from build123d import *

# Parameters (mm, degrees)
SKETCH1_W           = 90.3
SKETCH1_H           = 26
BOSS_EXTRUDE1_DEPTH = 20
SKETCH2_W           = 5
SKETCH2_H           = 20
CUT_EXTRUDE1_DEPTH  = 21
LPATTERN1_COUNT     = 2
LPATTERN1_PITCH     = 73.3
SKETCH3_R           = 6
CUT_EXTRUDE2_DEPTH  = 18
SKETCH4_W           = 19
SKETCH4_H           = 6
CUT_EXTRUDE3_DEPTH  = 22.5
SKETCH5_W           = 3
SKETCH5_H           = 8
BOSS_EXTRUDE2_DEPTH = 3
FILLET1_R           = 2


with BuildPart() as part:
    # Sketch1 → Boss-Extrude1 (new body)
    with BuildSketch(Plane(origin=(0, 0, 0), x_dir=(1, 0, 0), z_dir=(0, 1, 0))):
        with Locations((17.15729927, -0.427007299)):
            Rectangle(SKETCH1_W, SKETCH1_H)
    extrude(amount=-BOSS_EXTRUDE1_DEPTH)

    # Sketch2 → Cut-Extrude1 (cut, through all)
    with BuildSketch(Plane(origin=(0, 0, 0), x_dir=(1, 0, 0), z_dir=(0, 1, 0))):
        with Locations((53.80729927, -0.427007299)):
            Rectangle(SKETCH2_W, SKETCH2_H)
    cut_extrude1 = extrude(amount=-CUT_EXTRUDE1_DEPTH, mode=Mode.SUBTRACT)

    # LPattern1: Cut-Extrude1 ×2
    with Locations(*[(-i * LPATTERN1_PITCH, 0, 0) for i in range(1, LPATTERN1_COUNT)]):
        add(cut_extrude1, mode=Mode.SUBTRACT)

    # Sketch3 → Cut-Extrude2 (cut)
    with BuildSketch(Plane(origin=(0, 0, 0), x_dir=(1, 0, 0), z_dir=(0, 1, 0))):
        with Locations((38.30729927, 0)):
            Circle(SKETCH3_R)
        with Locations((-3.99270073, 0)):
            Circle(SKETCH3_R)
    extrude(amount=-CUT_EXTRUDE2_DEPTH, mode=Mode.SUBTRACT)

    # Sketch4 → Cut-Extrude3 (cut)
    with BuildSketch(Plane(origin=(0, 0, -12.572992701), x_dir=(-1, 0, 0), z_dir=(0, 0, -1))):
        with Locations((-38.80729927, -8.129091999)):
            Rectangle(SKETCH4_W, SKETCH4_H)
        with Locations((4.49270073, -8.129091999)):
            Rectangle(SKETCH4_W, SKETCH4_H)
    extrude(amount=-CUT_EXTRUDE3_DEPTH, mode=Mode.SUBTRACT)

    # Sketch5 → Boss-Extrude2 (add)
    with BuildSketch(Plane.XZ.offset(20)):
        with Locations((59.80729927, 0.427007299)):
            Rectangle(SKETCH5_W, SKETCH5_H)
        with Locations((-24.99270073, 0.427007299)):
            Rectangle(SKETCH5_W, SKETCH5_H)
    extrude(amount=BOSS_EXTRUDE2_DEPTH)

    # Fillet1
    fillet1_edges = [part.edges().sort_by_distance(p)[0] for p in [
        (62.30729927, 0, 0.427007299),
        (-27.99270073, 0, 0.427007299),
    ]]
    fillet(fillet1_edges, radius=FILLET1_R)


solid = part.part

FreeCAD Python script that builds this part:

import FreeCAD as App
import Part
import Sketcher
from FreeCAD import Vector
Q = App.Units.Quantity


def edges_at(feature, points):
    """Names of the edges that pass closest to the given points."""
    edges = feature.Shape.Edges
    near = lambda p: min(range(len(edges)), key=lambda i: edges[i].distToShape(Part.Vertex(*p))[0])
    return sorted({f"Edge{near(p) + 1}" for p in points})

doc = App.newDocument("Part")
params = doc.addObject("Spreadsheet::Sheet", "Params")
for row, (alias, value) in enumerate([
    ("sketch1_height", "26 mm"),
    ("sketch1_width", "90.3 mm"),
    ("pad1_length", "20 mm"),
    ("sketch2_width", "5 mm"),
    ("sketch2_height", "20 mm"),
    ("linearpattern_pitch", "73.3 mm"),
    ("sketch3_diameter", "12 mm"),
    ("pocket2_length", "18 mm"),
    ("sketch4_width", "19 mm"),
    ("sketch4_height", "6 mm"),
    ("pocket3_length", "22.5 mm"),
    ("sketch5_width", "3 mm"),
    ("sketch5_height", "8 mm"),
    ("pad2_length", "3 mm"),
    ("fillet_radius", "2 mm"),
], start=1):
    params.set(f"A{row}", alias)
    params.set(f"B{row}", "=" + value)
    params.setAlias(f"B{row}", alias)

body = doc.addObject("PartDesign::Body", "Body")

# Sketch on XZ plane
sketch1 = body.newObject("Sketcher::SketchObject", "Sketch")
sketch1.AttachmentSupport = (doc.getObject("XZ_Plane"), [""])
sketch1.MapMode = "FlatFace"
sketch1.addGeometry(Part.LineSegment(Vector(-28, -13, 0), Vector(-28, 13, 0)), False)
sketch1.addGeometry(Part.LineSegment(Vector(-28, 13, 0), Vector(62, 13, 0)), False)
sketch1.addGeometry(Part.LineSegment(Vector(62, 13, 0), Vector(62, -13, 0)), False)
sketch1.addGeometry(Part.LineSegment(Vector(62, -13, 0), Vector(-28, -13, 0)), False)
sketch1.addConstraint(Sketcher.Constraint("Coincident", 0, 2, 1, 1))
sketch1.addConstraint(Sketcher.Constraint("Coincident", 1, 2, 2, 1))
sketch1.addConstraint(Sketcher.Constraint("Coincident", 2, 2, 3, 1))
sketch1.addConstraint(Sketcher.Constraint("Coincident", 3, 2, 0, 1))
sketch1.addConstraint(Sketcher.Constraint("Vertical", 0))
sketch1.addConstraint(Sketcher.Constraint("Horizontal", 1))
sketch1.addConstraint(Sketcher.Constraint("Vertical", 2))
sketch1.addConstraint(Sketcher.Constraint("Horizontal", 3))
sketch1.addConstraint(Sketcher.Constraint("DistanceY", 0, 1, 0, 2, Q("26 mm")))
sketch1.addConstraint(Sketcher.Constraint("DistanceX", 1, 1, 1, 2, Q("90.3 mm")))
sketch1.addConstraint(Sketcher.Constraint("DistanceX", 0, 2, -1, 1, Q("27.992701 mm")))
sketch1.addConstraint(Sketcher.Constraint("DistanceY", -1, 1, 0, 2, Q("13.427007 mm")))
sketch1.setExpression("Constraints[8]", "Params.sketch1_height")
sketch1.setExpression("Constraints[9]", "Params.sketch1_width")
pad1 = body.newObject("PartDesign::Pad", "Pad")
pad1.Profile = sketch1
pad1.setExpression("Length", "Params.pad1_length")

# Sketch on XZ plane
sketch2 = body.newObject("Sketcher::SketchObject", "Sketch001")
sketch2.AttachmentSupport = (doc.getObject("XZ_Plane"), [""])
sketch2.MapMode = "FlatFace"
sketch2.addGeometry(Part.LineSegment(Vector(51, -10, 0), Vector(51, 10, 0)), False)
sketch2.addGeometry(Part.LineSegment(Vector(51, 10, 0), Vector(56, 10, 0)), False)
sketch2.addGeometry(Part.LineSegment(Vector(56, 10, 0), Vector(56, -10, 0)), False)
sketch2.addGeometry(Part.LineSegment(Vector(56, -10, 0), Vector(51, -10, 0)), False)
sketch2.addConstraint(Sketcher.Constraint("Coincident", 0, 2, 1, 1))
sketch2.addConstraint(Sketcher.Constraint("Coincident", 1, 2, 2, 1))
sketch2.addConstraint(Sketcher.Constraint("Coincident", 2, 2, 3, 1))
sketch2.addConstraint(Sketcher.Constraint("Coincident", 3, 2, 0, 1))
sketch2.addConstraint(Sketcher.Constraint("Vertical", 0))
sketch2.addConstraint(Sketcher.Constraint("Horizontal", 1))
sketch2.addConstraint(Sketcher.Constraint("Vertical", 2))
sketch2.addConstraint(Sketcher.Constraint("Horizontal", 3))
sketch2.addConstraint(Sketcher.Constraint("DistanceX", 1, 1, 1, 2, Q("5 mm")))
sketch2.addConstraint(Sketcher.Constraint("DistanceY", 0, 1, 0, 2, Q("20 mm")))
sketch2.addConstraint(Sketcher.Constraint("DistanceX", -1, 1, 0, 2, Q("51.307299 mm")))
sketch2.addConstraint(Sketcher.Constraint("DistanceY", -1, 1, 0, 2, Q("10.427007 mm")))
sketch2.setExpression("Constraints[8]", "Params.sketch2_width")
sketch2.setExpression("Constraints[9]", "Params.sketch2_height")
pocket1 = body.newObject("PartDesign::Pocket", "Pocket")
pocket1.Profile = sketch2
pocket1.Type = "ThroughAll"
pocket1.Reversed = True
doc.recompute()

linearpattern = body.newObject("PartDesign::LinearPattern", "LinearPattern")
linearpattern.Originals = [pocket1]
linearpattern.Direction = (doc.getObject("X_Axis"), [""])
linearpattern.Mode = "offset"
linearpattern.setExpression("Offset", "Params.linearpattern_pitch")
linearpattern.Occurrences = 2
linearpattern.Reversed = True
body.Tip = linearpattern

# Sketch on XZ plane
sketch3 = body.newObject("Sketcher::SketchObject", "Sketch002")
sketch3.AttachmentSupport = (doc.getObject("XZ_Plane"), [""])
sketch3.MapMode = "FlatFace"
sketch3.addGeometry(Part.Circle(Vector(38, 0, 0), Vector(0, 0, 1), 6), False)
sketch3.addGeometry(Part.Circle(Vector(-4, 0, 0), Vector(0, 0, 1), 6), False)
sketch3.addConstraint(Sketcher.Constraint("Equal", 0, 1))
sketch3.addConstraint(Sketcher.Constraint("PointOnObject", 0, 3, -1))
sketch3.addConstraint(Sketcher.Constraint("PointOnObject", 1, 3, -1))
sketch3.addConstraint(Sketcher.Constraint("Diameter", 0, Q("12 mm")))
sketch3.addConstraint(Sketcher.Constraint("DistanceX", 1, 3, 0, 3, Q("42.3 mm")))
sketch3.addConstraint(Sketcher.Constraint("DistanceX", -1, 1, 0, 3, Q("38.307299 mm")))
sketch3.setExpression("Constraints[3]", "Params.sketch3_diameter")
pocket2 = body.newObject("PartDesign::Pocket", "Pocket001")
pocket2.Profile = sketch3
pocket2.setExpression("Length", "Params.pocket2_length")
pocket2.Reversed = True

# Sketch on XY plane
sketch4 = body.newObject("Sketcher::SketchObject", "Sketch003")
sketch4.AttachmentSupport = (doc.getObject("XY_Plane"), [""])
sketch4.MapMode = "FlatFace"
sketch4.AttachmentOffset = App.Placement(Vector(0, 0, -12.572993), App.Rotation())
sketch4.addGeometry(Part.LineSegment(Vector(48, -5, 0), Vector(48, -11, 0)), False)
sketch4.addGeometry(Part.LineSegment(Vector(48, -11, 0), Vector(29, -11, 0)), False)
sketch4.addGeometry(Part.LineSegment(Vector(29, -11, 0), Vector(29, -5, 0)), False)
sketch4.addGeometry(Part.LineSegment(Vector(29, -5, 0), Vector(48, -5, 0)), False)
sketch4.addGeometry(Part.LineSegment(Vector(5, -5, 0), Vector(5, -11, 0)), False)
sketch4.addGeometry(Part.LineSegment(Vector(5, -11, 0), Vector(-14, -11, 0)), False)
sketch4.addGeometry(Part.LineSegment(Vector(-14, -11, 0), Vector(-14, -5, 0)), False)
sketch4.addGeometry(Part.LineSegment(Vector(-14, -5, 0), Vector(5, -5, 0)), False)
sketch4.addConstraint(Sketcher.Constraint("Coincident", 0, 2, 1, 1))
sketch4.addConstraint(Sketcher.Constraint("Coincident", 1, 2, 2, 1))
sketch4.addConstraint(Sketcher.Constraint("Coincident", 2, 2, 3, 1))
sketch4.addConstraint(Sketcher.Constraint("Coincident", 3, 2, 0, 1))
sketch4.addConstraint(Sketcher.Constraint("Coincident", 4, 2, 5, 1))
sketch4.addConstraint(Sketcher.Constraint("Coincident", 5, 2, 6, 1))
sketch4.addConstraint(Sketcher.Constraint("Coincident", 6, 2, 7, 1))
sketch4.addConstraint(Sketcher.Constraint("Coincident", 7, 2, 4, 1))
sketch4.addConstraint(Sketcher.Constraint("Vertical", 0))
sketch4.addConstraint(Sketcher.Constraint("Horizontal", 1))
sketch4.addConstraint(Sketcher.Constraint("Vertical", 2))
sketch4.addConstraint(Sketcher.Constraint("Horizontal", 3))
sketch4.addConstraint(Sketcher.Constraint("Vertical", 4))
sketch4.addConstraint(Sketcher.Constraint("Horizontal", 5))
sketch4.addConstraint(Sketcher.Constraint("Vertical", 6))
sketch4.addConstraint(Sketcher.Constraint("Horizontal", 7))
sketch4.addConstraint(Sketcher.Constraint("Horizontal", 1, 2, 4, 2))
sketch4.addConstraint(Sketcher.Constraint("Horizontal", 3, 2, 6, 2))
sketch4.addConstraint(Sketcher.Constraint("Equal", 3, 5))
sketch4.addConstraint(Sketcher.Constraint("DistanceX", 1, 2, 1, 1, Q("19 mm")))
sketch4.addConstraint(Sketcher.Constraint("DistanceY", 0, 2, 0, 1, Q("6 mm")))
sketch4.addConstraint(Sketcher.Constraint("DistanceX", 4, 2, 1, 2, Q("24.3 mm")))
sketch4.addConstraint(Sketcher.Constraint("DistanceX", -1, 1, 0, 2, Q("48.307299 mm")))
sketch4.addConstraint(Sketcher.Constraint("DistanceY", 0, 2, -1, 1, Q("11.129092 mm")))
sketch4.setExpression("Constraints[19]", "Params.sketch4_width")
sketch4.setExpression("Constraints[20]", "Params.sketch4_height")
pocket3 = body.newObject("PartDesign::Pocket", "Pocket002")
pocket3.Profile = sketch4
pocket3.setExpression("Length", "Params.pocket3_length")
pocket3.Reversed = True

# Sketch on XZ plane
sketch5 = body.newObject("Sketcher::SketchObject", "Sketch004")
sketch5.AttachmentSupport = (doc.getObject("XZ_Plane"), [""])
sketch5.MapMode = "FlatFace"
sketch5.AttachmentOffset = App.Placement(Vector(0, 0, 20), App.Rotation())
sketch5.addGeometry(Part.LineSegment(Vector(58.3, 4.4, 0), Vector(58.3, -3.6, 0)), False)
sketch5.addGeometry(Part.LineSegment(Vector(58.3, -3.6, 0), Vector(61.3, -3.6, 0)), False)
sketch5.addGeometry(Part.LineSegment(Vector(61.3, -3.6, 0), Vector(61.3, 4.4, 0)), False)
sketch5.addGeometry(Part.LineSegment(Vector(61.3, 4.4, 0), Vector(58.3, 4.4, 0)), False)
sketch5.addGeometry(Part.LineSegment(Vector(-26.5, 4.4, 0), Vector(-26.5, -3.6, 0)), False)
sketch5.addGeometry(Part.LineSegment(Vector(-26.5, -3.6, 0), Vector(-23.5, -3.6, 0)), False)
sketch5.addGeometry(Part.LineSegment(Vector(-23.5, -3.6, 0), Vector(-23.5, 4.4, 0)), False)
sketch5.addGeometry(Part.LineSegment(Vector(-23.5, 4.4, 0), Vector(-26.5, 4.4, 0)), False)
sketch5.addConstraint(Sketcher.Constraint("Coincident", 0, 2, 1, 1))
sketch5.addConstraint(Sketcher.Constraint("Coincident", 1, 2, 2, 1))
sketch5.addConstraint(Sketcher.Constraint("Coincident", 2, 2, 3, 1))
sketch5.addConstraint(Sketcher.Constraint("Coincident", 3, 2, 0, 1))
sketch5.addConstraint(Sketcher.Constraint("Coincident", 4, 2, 5, 1))
sketch5.addConstraint(Sketcher.Constraint("Coincident", 5, 2, 6, 1))
sketch5.addConstraint(Sketcher.Constraint("Coincident", 6, 2, 7, 1))
sketch5.addConstraint(Sketcher.Constraint("Coincident", 7, 2, 4, 1))
sketch5.addConstraint(Sketcher.Constraint("Vertical", 0))
sketch5.addConstraint(Sketcher.Constraint("Horizontal", 1))
sketch5.addConstraint(Sketcher.Constraint("Vertical", 2))
sketch5.addConstraint(Sketcher.Constraint("Horizontal", 3))
sketch5.addConstraint(Sketcher.Constraint("Vertical", 4))
sketch5.addConstraint(Sketcher.Constraint("Horizontal", 5))
sketch5.addConstraint(Sketcher.Constraint("Vertical", 6))
sketch5.addConstraint(Sketcher.Constraint("Horizontal", 7))
sketch5.addConstraint(Sketcher.Constraint("Horizontal", 1, 2, 4, 2))
sketch5.addConstraint(Sketcher.Constraint("Horizontal", 3, 2, 6, 2))
sketch5.addConstraint(Sketcher.Constraint("Equal", 3, 5))
sketch5.addConstraint(Sketcher.Constraint("DistanceX", 1, 1, 1, 2, Q("3 mm")))
sketch5.addConstraint(Sketcher.Constraint("DistanceY", 0, 2, 0, 1, Q("8 mm")))
sketch5.addConstraint(Sketcher.Constraint("DistanceX", 4, 2, 0, 2, Q("84.8 mm")))
sketch5.addConstraint(Sketcher.Constraint("DistanceX", -1, 1, 0, 2, Q("58.307299 mm")))
sketch5.addConstraint(Sketcher.Constraint("DistanceY", 0, 2, -1, 1, Q("3.572993 mm")))
sketch5.setExpression("Constraints[19]", "Params.sketch5_width")
sketch5.setExpression("Constraints[20]", "Params.sketch5_height")
pad2 = body.newObject("PartDesign::Pad", "Pad001")
pad2.Profile = sketch5
pad2.setExpression("Length", "Params.pad2_length")
doc.recompute()

fillet = body.newObject("PartDesign::Fillet", "Fillet")
fillet.Base = (pad2, edges_at(pad2, [(62.307, 0, 0.427), (-27.993, 0, 0.427)]))
fillet.setExpression("Radius", "Params.fillet_radius")

doc.recompute()
